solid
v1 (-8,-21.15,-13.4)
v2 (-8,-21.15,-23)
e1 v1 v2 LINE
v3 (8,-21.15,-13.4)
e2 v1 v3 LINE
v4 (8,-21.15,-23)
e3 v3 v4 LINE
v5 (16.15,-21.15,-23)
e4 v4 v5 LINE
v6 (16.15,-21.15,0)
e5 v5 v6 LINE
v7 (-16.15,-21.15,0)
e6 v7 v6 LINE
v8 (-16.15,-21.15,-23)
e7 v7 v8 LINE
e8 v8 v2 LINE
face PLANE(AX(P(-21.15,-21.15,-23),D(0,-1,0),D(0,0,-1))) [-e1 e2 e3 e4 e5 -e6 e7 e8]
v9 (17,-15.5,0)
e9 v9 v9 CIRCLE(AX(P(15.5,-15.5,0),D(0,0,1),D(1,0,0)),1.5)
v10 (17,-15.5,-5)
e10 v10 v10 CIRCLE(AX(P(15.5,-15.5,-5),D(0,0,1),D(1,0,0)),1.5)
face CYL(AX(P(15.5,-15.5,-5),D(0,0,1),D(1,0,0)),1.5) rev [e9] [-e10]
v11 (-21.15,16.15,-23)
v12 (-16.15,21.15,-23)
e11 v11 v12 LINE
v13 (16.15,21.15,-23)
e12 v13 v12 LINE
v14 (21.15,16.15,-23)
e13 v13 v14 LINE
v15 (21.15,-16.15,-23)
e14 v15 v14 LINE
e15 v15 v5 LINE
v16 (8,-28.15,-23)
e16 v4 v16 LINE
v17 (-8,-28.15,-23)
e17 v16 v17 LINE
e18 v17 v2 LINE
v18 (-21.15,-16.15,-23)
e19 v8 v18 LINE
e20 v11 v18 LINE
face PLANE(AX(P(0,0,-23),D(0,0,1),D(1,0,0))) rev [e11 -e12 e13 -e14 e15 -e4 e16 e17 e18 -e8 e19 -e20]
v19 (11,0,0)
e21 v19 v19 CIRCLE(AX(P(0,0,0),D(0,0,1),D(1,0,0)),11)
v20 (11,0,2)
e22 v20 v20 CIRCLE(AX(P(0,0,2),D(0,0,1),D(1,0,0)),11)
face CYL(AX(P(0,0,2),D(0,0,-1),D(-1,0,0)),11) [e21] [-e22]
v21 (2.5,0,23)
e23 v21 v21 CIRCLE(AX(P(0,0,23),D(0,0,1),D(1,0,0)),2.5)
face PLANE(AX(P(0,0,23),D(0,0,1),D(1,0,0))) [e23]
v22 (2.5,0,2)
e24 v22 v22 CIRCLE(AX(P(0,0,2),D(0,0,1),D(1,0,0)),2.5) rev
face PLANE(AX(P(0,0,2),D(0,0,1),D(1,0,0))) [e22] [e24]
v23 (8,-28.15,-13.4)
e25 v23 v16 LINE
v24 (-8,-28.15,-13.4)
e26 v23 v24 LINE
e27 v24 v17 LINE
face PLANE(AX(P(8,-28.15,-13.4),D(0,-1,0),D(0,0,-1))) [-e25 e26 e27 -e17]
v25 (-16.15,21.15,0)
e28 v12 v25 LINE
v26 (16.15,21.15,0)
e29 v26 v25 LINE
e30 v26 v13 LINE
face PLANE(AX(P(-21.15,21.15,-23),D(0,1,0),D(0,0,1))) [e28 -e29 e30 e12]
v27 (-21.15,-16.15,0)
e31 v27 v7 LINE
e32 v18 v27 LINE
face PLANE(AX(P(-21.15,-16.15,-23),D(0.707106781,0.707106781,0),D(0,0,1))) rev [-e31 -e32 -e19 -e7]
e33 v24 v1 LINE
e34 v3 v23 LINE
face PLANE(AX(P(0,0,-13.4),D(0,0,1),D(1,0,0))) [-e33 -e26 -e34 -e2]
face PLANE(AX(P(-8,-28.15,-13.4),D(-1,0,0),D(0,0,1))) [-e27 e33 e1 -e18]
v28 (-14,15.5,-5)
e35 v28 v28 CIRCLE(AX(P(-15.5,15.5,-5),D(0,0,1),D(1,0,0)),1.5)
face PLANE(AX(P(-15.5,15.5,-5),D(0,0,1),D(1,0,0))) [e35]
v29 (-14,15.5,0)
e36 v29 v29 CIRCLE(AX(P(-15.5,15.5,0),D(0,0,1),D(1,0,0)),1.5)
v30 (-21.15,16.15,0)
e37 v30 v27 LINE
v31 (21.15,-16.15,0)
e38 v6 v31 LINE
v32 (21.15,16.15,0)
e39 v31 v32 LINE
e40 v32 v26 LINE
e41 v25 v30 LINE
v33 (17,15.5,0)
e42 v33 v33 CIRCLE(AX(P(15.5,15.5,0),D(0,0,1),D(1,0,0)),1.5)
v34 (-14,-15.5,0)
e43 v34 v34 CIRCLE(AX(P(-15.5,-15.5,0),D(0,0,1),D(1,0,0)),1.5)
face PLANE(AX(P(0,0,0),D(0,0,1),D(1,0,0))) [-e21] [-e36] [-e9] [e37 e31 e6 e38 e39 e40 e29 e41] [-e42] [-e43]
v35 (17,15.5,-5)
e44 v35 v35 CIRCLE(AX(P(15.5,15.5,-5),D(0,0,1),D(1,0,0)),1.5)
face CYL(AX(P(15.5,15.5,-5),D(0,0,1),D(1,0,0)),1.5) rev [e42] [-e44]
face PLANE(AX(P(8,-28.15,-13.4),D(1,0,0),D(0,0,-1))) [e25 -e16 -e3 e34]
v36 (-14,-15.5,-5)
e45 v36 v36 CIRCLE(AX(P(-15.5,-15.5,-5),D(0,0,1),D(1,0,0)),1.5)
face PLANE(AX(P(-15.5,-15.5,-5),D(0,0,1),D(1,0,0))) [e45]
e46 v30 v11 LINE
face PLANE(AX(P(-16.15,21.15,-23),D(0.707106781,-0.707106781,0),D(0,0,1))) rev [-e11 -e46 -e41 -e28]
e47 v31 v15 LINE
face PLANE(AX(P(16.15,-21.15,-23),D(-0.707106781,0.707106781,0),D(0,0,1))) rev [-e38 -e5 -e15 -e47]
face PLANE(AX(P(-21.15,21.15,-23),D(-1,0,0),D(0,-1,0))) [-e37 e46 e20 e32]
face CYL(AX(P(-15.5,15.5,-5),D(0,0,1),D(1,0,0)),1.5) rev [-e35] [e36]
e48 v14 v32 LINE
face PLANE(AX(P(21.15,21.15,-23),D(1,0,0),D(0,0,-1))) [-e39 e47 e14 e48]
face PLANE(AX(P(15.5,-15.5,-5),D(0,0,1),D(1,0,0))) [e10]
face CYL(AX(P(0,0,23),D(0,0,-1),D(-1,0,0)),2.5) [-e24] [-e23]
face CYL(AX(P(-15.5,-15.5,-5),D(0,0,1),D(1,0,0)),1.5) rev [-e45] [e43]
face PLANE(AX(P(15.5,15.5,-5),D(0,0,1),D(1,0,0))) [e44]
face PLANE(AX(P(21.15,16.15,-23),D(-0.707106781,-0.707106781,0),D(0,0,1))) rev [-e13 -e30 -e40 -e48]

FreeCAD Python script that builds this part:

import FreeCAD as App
import Part
import Sketcher

V = App.Vector


def edges_at(feature, points):
    """Names of the edges that pass closest to the given points."""
    edges = feature.Shape.Edges
    near = lambda p: min(range(len(edges)), key=lambda i: edges[i].distToShape(Part.Vertex(*p))[0])
    return sorted({f"Edge{near(p) + 1}" for p in points})

doc = App.newDocument("Part")
params = doc.addObject("Spreadsheet::Sheet", "Params")
for row, (alias, value) in enumerate([
    ("sketch1_width", "42.3 mm"),
    ("pad1_length", "23 mm"),
    ("chamfer_size", "5 mm"),
    ("sketch2_diameter", "3 mm"),
    ("pocket1_length", "5 mm"),
    ("sketch3_diameter", "22 mm"),
    ("pad2_length", "2 mm"),
    ("sketch4_diameter", "5 mm"),
    ("pad3_length", "23 mm"),
    ("sketch5_width", "16 mm"),
    ("sketch5_height", "7 mm"),
    ("pad4_length", "9.6 mm"),
], start=1):
    params.set(f"A{row}", alias)
    params.set(f"B{row}", "=" + value)
    params.setAlias(f"B{row}", alias)

body = doc.addObject("PartDesign::Body", "Body")

# Sketch on XY plane
sketch1 = doc.addObject("Sketcher::SketchObject", "Sketch")
body.addObject(sketch1)
sketch1.AttachmentSupport = (doc.XY_Plane, [""])
sketch1.MapMode = "FlatFace"
sketch1.addGeometry([
    Part.LineSegment(V(-21, 21, 0), V(-21, -21, 0)),
    Part.LineSegment(V(-21, -21, 0), V(21, -21, 0)),
    Part.LineSegment(V(21, -21, 0), V(21, 21, 0)),
    Part.LineSegment(V(21, 21, 0), V(-21, 21, 0)),
], False)
sketch1.addConstraint([
    Sketcher.Constraint("Coincident", 0, 2, 1, 1),
    Sketcher.Constraint("Coincident", 1, 2, 2, 1),
    Sketcher.Constraint("Coincident", 2, 2, 3, 1),
    Sketcher.Constraint("Coincident", 3, 2, 0, 1),
    Sketcher.Constraint("Vertical", 0),
    Sketcher.Constraint("Horizontal", 1),
    Sketcher.Constraint("Vertical", 2),
    Sketcher.Constraint("Horizontal", 3),
    Sketcher.Constraint("Symmetric", 0, 2, 2, 2, -1, 1),
    Sketcher.Constraint("Equal", 3, 0),
    Sketcher.Constraint("DistanceX", 1, 1, 1, 2, 42.3),
])
sketch1.setExpression("Constraints[10]", "Params.sketch1_width")
pad1 = doc.addObject("PartDesign::Pad", "Pad")
body.addObject(pad1)
pad1.Profile = sketch1
pad1.setExpression("Length", "Params.pad1_length")
pad1.Reversed = True
doc.recompute()

chamfer = doc.addObject("PartDesign::Chamfer", "Chamfer")
body.addObject(chamfer)
chamfer.Base = (pad1, edges_at(pad1, [
    (21.15, -21.15, -11.5),
    (-21.15, -21.15, -11.5),
    (-21.15, 21.15, -11.5),
    (21.15, 21.15, -11.5),
]))
chamfer.setExpression("Size", "Params.chamfer_size")

# Sketch on XY plane
sketch2 = doc.addObject("Sketcher::SketchObject", "Sketch001")
body.addObject(sketch2)
sketch2.AttachmentSupport = (doc.XY_Plane, [""])
sketch2.MapMode = "FlatFace"
sketch2.addGeometry([
    Part.Circle(V(15.5, -15.5, 0), V(0, 0, 1), 1.5),
    Part.Circle(V(-15.5, -15.5, 0), V(0, 0, 1), 1.5),
    Part.Circle(V(-15.5, 15.5, 0), V(0, 0, 1), 1.5),
    Part.Circle(V(15.5, 15.5, 0), V(0, 0, 1), 1.5),
], False)
sketch2.addConstraint([
    Sketcher.Constraint("Equal", 0, 1),
    Sketcher.Constraint("Equal", 1, 2),
    Sketcher.Constraint("Equal", 2, 3),
    Sketcher.Constraint("Symmetric", 0, 3, 2, 3, -1, 1),
    Sketcher.Constraint("Symmetric", 1, 3, 3, 3, -1, 1),
    Sketcher.Constraint("Symmetric", 0, 3, 1, 3, -2),
    Sketcher.Constraint("Diameter", 0, 3.0),
    Sketcher.Constraint("DistanceX", 1, 3, 0, 3, 31.0),
    Sketcher.Constraint("DistanceY", 1, 3, 2, 3, 31.0),
])
sketch2.setExpression("Constraints[6]", "Params.sketch2_diameter")
pocket1 = doc.addObject("PartDesign::Pocket", "Pocket")
body.addObject(pocket1)
pocket1.Profile = sketch2
pocket1.setExpression("Length", "Params.pocket1_length")

# Sketch on XY plane
sketch3 = doc.addObject("Sketcher::SketchObject", "Sketch002")
body.addObject(sketch3)
sketch3.AttachmentSupport = (doc.XY_Plane, [""])
sketch3.MapMode = "FlatFace"
sketch3.addGeometry(Part.Circle(V(0, 0, 0), V(0, 0, 1), 11), False)
sketch3.addConstraint([
    Sketcher.Constraint("Coincident", 0, 3, -1, 1),
    Sketcher.Constraint("Diameter", 0, 22.0),
])
sketch3.setExpression("Constraints[1]", "Params.sketch3_diameter")
pad2 = doc.addObject("PartDesign::Pad", "Pad001")
body.addObject(pad2)
pad2.Profile = sketch3
pad2.setExpression("Length", "Params.pad2_length")

# Sketch on XY plane
sketch4 = doc.addObject("Sketcher::SketchObject", "Sketch003")
body.addObject(sketch4)
sketch4.AttachmentSupport = (doc.XY_Plane, [""])
sketch4.MapMode = "FlatFace"
sketch4.addGeometry(Part.Circle(V(0, 0, 0), V(0, 0, 1), 2.5), False)
sketch4.addConstraint([
    Sketcher.Constraint("Coincident", 0, 3, -1, 1),
    Sketcher.Constraint("Diameter", 0, 5.0),
])
sketch4.setExpression("Constraints[1]", "Params.sketch4_diameter")
pad3 = doc.addObject("PartDesign::Pad", "Pad002")
body.addObject(pad3)
pad3.Profile = sketch4
pad3.setExpression("Length", "Params.pad3_length")

# Sketch on XY plane
sketch5 = doc.addObject("Sketcher::SketchObject", "Sketch004")
body.addObject(sketch5)
sketch5.AttachmentSupport = (doc.XY_Plane, [""])
sketch5.MapMode = "FlatFace"
sketch5.AttachmentOffset = App.Placement(V(0, 0, -23), App.Rotation())
sketch5.addGeometry([
    Part.LineSegment(V(8, -21, 0), V(8, -28, 0)),
    Part.LineSegment(V(8, -28, 0), V(-8, -28, 0)),
    Part.LineSegment(V(-8, -28, 0), V(-8, -21, 0)),
    Part.LineSegment(V(-8, -21, 0), V(8, -21, 0)),
], False)
sketch5.addConstraint([
    Sketcher.Constraint("Coincident", 0, 2, 1, 1),
    Sketcher.Constraint("Coincident", 1, 2, 2, 1),
    Sketcher.Constraint("Coincident", 2, 2, 3, 1),
    Sketcher.Constraint("Coincident", 3, 2, 0, 1),
    Sketcher.Constraint("Vertical", 0),
    Sketcher.Constraint("Horizontal", 1),
    Sketcher.Constraint("Vertical", 2),
    Sketcher.Constraint("Horizontal", 3),
    Sketcher.Constraint("DistanceX", 1, 2, 1, 1, 16.0),
    Sketcher.Constraint("DistanceY", 0, 2, 0, 1, 7.0),
    Sketcher.Constraint("DistanceX", -1, 1, 0, 2, 8.0),
    Sketcher.Constraint("DistanceY", 0, 2, -1, 1, 28.15),
])
sketch5.setExpression("Constraints[8]", "Params.sketch5_width")
sketch5.setExpression("Constraints[9]", "Params.sketch5_height")
pad4 = doc.addObject("PartDesign::Pad", "Pad003")
body.addObject(pad4)
pad4.Profile = sketch5
pad4.setExpression("Length", "Params.pad4_length")

doc.recompute()
